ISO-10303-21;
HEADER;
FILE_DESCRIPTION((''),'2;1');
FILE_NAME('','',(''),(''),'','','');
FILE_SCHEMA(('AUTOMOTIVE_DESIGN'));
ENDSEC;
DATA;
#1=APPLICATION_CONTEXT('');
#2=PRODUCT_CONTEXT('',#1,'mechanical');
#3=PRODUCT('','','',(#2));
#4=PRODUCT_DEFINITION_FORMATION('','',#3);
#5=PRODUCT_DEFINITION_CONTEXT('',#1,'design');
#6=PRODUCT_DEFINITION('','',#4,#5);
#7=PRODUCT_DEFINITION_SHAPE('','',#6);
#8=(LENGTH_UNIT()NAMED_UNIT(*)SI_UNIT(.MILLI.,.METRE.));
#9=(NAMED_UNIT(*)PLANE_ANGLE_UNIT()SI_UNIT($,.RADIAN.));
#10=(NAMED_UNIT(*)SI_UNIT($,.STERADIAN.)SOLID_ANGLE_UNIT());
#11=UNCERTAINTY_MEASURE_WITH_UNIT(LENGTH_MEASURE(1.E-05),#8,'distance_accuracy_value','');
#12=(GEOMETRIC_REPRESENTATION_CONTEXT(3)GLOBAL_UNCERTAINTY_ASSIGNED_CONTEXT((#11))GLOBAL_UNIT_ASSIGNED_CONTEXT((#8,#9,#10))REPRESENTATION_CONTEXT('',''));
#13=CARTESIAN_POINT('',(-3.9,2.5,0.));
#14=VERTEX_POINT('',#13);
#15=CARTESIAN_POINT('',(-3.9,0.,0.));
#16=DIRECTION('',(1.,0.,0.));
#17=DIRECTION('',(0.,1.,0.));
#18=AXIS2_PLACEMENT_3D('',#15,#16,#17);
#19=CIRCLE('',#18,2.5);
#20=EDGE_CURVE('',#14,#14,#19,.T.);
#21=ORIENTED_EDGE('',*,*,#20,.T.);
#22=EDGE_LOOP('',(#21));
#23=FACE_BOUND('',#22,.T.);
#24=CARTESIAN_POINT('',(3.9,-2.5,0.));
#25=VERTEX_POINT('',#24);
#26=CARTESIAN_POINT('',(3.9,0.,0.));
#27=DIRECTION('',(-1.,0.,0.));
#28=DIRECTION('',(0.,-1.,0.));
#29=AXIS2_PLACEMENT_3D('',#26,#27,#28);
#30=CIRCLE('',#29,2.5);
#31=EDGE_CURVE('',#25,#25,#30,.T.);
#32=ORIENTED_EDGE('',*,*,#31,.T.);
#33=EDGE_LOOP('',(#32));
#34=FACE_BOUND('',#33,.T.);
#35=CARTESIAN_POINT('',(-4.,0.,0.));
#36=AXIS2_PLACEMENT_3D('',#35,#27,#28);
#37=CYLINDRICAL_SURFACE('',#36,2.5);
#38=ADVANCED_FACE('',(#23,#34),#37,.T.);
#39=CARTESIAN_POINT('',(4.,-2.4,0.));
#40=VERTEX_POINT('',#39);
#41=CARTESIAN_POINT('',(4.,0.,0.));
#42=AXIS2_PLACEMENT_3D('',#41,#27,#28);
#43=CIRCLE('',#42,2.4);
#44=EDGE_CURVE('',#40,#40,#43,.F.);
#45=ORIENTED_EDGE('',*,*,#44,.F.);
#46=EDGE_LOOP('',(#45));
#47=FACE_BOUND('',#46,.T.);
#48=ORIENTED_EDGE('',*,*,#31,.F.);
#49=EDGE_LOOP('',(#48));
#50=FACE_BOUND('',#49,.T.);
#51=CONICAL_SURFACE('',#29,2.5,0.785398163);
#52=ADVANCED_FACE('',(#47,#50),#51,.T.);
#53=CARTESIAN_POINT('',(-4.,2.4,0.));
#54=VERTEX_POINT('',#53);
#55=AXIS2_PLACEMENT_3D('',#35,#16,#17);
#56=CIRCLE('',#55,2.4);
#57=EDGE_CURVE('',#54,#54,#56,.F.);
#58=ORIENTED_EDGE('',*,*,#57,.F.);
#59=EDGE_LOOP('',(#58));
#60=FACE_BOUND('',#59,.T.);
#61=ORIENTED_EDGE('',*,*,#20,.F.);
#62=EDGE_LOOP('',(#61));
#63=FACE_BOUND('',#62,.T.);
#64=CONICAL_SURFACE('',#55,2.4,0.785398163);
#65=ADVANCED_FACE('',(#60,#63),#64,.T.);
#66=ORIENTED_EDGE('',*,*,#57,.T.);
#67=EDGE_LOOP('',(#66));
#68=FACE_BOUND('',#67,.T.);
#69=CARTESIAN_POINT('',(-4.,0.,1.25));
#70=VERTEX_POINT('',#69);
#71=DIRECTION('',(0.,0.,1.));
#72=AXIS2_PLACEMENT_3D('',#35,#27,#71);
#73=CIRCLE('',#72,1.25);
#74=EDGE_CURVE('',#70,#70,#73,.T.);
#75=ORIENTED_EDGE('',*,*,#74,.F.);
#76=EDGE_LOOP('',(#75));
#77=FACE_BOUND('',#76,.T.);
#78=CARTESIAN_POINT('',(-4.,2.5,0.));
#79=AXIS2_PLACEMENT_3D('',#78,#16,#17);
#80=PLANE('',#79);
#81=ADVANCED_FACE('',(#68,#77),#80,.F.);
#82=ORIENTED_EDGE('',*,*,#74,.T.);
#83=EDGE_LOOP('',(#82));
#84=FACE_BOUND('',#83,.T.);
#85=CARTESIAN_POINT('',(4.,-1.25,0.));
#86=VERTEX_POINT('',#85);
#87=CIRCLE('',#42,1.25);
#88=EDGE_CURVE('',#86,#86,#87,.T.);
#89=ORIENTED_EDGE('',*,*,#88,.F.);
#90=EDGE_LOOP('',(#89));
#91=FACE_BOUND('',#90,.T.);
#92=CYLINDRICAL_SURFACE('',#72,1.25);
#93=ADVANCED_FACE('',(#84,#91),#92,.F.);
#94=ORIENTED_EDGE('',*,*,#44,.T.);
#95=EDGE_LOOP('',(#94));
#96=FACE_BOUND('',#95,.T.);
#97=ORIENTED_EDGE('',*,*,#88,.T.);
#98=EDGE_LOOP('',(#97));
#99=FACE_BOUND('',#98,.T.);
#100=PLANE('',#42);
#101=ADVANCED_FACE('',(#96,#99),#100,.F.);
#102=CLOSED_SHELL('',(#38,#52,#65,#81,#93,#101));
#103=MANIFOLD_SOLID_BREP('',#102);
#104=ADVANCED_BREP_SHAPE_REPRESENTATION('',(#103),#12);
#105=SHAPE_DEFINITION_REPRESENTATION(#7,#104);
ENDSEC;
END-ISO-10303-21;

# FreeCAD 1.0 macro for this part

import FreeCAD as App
import Part
import Sketcher

V = App.Vector
Q = App.Units.Quantity


def edges_at(feature, points):
    """Names of the edges that pass closest to the given points."""
    edges = feature.Shape.Edges
    near = lambda p: min(range(len(edges)), key=lambda i: edges[i].distToShape(Part.Vertex(*p))[0])
    return sorted({f"Edge{near(p) + 1}" for p in points})


def add_polygon(sketch, points):
    """Adds a closed chain of lines whose ends are joined by coincident constraints."""
    first, n = sketch.GeometryCount, len(points)
    for a, b in zip(points, points[1:] + points[:1]):
        sketch.addGeometry(Part.LineSegment(App.Vector(*a, 0), App.Vector(*b, 0)), False)
    for i in range(n):
        sketch.addConstraint(Sketcher.Constraint("Coincident", first + i, 2, first + (i + 1) % n, 1))

doc = App.newDocument("Part")
body = doc.addObject("PartDesign::Body", "Body")

# Sketch on XY plane
sketch1 = doc.addObject("Sketcher::SketchObject", "Sketch")
body.addObject(sketch1)
sketch1.AttachmentSupport = (doc.XY_Plane, [""])
sketch1.MapMode = "FlatFace"
add_polygon(sketch1, [(-4, 2.5), (-4, 0), (4, 0), (4, 2.5)])  # lines 0-3
sketch1.addConstraint(Sketcher.Constraint("Vertical", 0))
sketch1.addConstraint(Sketcher.Constraint("Horizontal", 1))
sketch1.addConstraint(Sketcher.Constraint("Vertical", 2))
sketch1.addConstraint(Sketcher.Constraint("Horizontal", 3))
sketch1.addConstraint(Sketcher.Constraint("Symmetric", 0, 2, 1, 2, -1, 1))
sketch1.addConstraint(Sketcher.Constraint("DistanceX", 1, 1, 1, 2, Q("8 mm")))
sketch1.addConstraint(Sketcher.Constraint("DistanceY", 0, 2, 0, 1, Q("2.5 mm")))
revolution = doc.addObject("PartDesign::Revolution", "Revolution")
body.addObject(revolution)
revolution.Profile = sketch1
revolution.ReferenceAxis = (sketch1, ["H_Axis"])
revolution.Angle = 360

# Sketch on XZ plane
sketch2 = doc.addObject("Sketcher::SketchObject", "Sketch001")
body.addObject(sketch2)
sketch2.AttachmentSupport = (doc.XZ_Plane, [""])
sketch2.MapMode = "FlatFace"
add_polygon(sketch2, [(6.751076, 0), (-4, 0), (-4, 1.25), (6, 1.25)])  # lines 0-3
sketch2.addConstraint(Sketcher.Constraint("Horizontal", 0))
sketch2.addConstraint(Sketcher.Constraint("Vertical", 1))
sketch2.addConstraint(Sketcher.Constraint("Horizontal", 2))
sketch2.addConstraint(Sketcher.Constraint("PointOnObject", 0, 2, -1))
sketch2.addConstraint(Sketcher.Constraint("DistanceX", 2, 1, 2, 2, Q("10 mm")))
sketch2.addConstraint(Sketcher.Constraint("Angle", 3, Q("-59 deg")))
sketch2.addConstraint(Sketcher.Constraint("DistanceX", 0, 2, -1, 1, Q("4 mm")))
sketch2.addConstraint(Sketcher.Constraint("DistanceY", 1, 1, 1, 2, Q("1.25 mm")))
groove = doc.addObject("PartDesign::Groove", "Groove")
body.addObject(groove)
groove.Profile = sketch2
groove.ReferenceAxis = (sketch2, ["H_Axis"])
groove.Angle = 360
doc.recompute()

mirrored = doc.addObject("PartDesign::Mirrored", "Mirrored")
body.addObject(mirrored)
mirrored.Originals = [groove]
mirrored.MirrorPlane = (doc.YZ_Plane, [""])
body.Tip = mirrored
doc.recompute()

chamfer = doc.addObject("PartDesign::Chamfer", "Chamfer")
body.addObject(chamfer)
chamfer.Base = (mirrored, edges_at(mirrored, [(-4, 2.5, 0), (4, 2.5, 0)]))
chamfer.Size = 0.1

doc.recompute()
